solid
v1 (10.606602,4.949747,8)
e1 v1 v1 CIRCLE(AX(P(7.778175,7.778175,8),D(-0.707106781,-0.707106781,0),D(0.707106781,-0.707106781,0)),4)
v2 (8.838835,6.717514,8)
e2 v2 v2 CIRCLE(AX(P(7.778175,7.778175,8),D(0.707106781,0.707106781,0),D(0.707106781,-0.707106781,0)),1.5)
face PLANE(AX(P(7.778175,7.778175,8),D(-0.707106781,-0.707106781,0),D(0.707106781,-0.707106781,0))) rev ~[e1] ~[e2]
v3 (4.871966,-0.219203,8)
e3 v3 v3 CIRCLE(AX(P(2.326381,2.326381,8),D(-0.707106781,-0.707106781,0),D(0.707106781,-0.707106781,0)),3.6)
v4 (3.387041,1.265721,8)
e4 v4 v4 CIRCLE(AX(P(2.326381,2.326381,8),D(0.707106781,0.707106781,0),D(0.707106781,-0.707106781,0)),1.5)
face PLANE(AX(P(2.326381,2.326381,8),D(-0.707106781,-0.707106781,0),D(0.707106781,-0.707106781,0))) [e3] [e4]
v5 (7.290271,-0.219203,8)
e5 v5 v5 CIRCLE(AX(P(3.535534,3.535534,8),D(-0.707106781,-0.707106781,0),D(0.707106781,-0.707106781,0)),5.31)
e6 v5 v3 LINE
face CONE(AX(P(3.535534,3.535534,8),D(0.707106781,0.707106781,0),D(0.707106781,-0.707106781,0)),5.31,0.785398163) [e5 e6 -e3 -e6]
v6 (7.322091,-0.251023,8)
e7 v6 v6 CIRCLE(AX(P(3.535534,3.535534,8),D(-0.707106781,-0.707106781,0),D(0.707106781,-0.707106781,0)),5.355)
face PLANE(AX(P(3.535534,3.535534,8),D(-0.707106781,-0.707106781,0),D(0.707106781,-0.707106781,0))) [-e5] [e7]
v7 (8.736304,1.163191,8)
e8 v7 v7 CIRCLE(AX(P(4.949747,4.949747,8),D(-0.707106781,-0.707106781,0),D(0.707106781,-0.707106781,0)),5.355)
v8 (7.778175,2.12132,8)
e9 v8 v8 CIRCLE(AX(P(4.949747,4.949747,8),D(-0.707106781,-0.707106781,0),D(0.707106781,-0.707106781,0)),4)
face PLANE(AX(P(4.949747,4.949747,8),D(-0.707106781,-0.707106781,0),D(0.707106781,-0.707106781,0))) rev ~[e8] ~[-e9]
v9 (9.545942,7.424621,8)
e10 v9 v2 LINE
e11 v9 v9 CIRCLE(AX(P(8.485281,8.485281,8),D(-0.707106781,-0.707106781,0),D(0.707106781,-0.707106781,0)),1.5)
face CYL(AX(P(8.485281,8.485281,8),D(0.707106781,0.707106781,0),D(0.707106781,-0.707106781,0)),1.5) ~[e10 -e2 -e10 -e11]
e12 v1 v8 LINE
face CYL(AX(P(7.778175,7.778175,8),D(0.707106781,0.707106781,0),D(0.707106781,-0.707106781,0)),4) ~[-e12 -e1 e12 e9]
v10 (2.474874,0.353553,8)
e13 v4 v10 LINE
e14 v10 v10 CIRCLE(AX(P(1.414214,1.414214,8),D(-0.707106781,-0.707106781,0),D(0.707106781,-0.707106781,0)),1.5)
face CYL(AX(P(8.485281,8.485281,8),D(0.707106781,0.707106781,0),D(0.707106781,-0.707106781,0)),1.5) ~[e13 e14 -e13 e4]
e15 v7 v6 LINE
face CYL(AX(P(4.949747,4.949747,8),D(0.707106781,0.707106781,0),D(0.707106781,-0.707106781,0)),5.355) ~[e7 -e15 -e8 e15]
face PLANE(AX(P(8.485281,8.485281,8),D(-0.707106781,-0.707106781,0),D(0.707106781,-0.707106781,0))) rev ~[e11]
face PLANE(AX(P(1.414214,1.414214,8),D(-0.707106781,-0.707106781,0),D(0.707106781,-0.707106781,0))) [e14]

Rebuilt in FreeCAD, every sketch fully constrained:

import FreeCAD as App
import Part
import Sketcher

V = App.Vector
Q = App.Units.Quantity

doc = App.newDocument("Part")
body = doc.addObject("PartDesign::Body", "Body")

sketch1 = doc.addObject("Sketcher::SketchObject", "Sketch")
body.addObject(sketch1)
sketch1.AttachmentSupport = (doc.XZ_Plane, [""])
sketch1.MapMode = "FlatFace"
sketch1.AttachmentOffset = App.Placement(V(0, 0, -12), App.Rotation())
sketch1.addGeometry(Part.Circle(V(0, 8, 0), V(0, 0, 1), 1.5), False)
sketch1.addConstraint(Sketcher.Constraint("PointOnObject", 0, 3, -2))
sketch1.addConstraint(Sketcher.Constraint("Diameter", 0, Q("3 mm")))
sketch1.addConstraint(Sketcher.Constraint("DistanceY", -1, 1, 0, 3, Q("8 mm")))
pad1 = doc.addObject("PartDesign::Pad", "Pad")
body.addObject(pad1)
pad1.Profile = sketch1
pad1.Length = 10
body2 = doc.addObject("PartDesign::Body", "Body001")

sketch2 = doc.addObject("Sketcher::SketchObject", "Sketch001")
body2.addObject(sketch2)
sketch2.AttachmentSupport = (doc.getObject("XZ_Plane001"), [""])
sketch2.MapMode = "FlatFace"
sketch2.AttachmentOffset = App.Placement(V(0, 0, -11), App.Rotation())
sketch2.addGeometry(Part.Circle(V(0, 8, 0), V(0, 0, 1), 4), False)
sketch2.addConstraint(Sketcher.Constraint("PointOnObject", 0, 3, -2))
sketch2.addConstraint(Sketcher.Constraint("Diameter", 0, Q("8 mm")))
sketch2.addConstraint(Sketcher.Constraint("DistanceY", -1, 1, 0, 3, Q("8 mm")))
pad2 = doc.addObject("PartDesign::Pad", "Pad001")
body2.addObject(pad2)
pad2.Profile = sketch2
pad2.Length = 4
body3 = doc.addObject("PartDesign::Body", "Body002")

sketch3 = doc.addObject("Sketcher::SketchObject", "Sketch002")
body3.addObject(sketch3)
sketch3.AttachmentSupport = (doc.getObject("XZ_Plane002"), [""])
sketch3.MapMode = "FlatFace"
sketch3.AttachmentOffset = App.Placement(V(0, 0, -7), App.Rotation())
sketch3.addGeometry(Part.Circle(V(0, 8, 0), V(0, 0, 1), 5.355), False)
sketch3.addConstraint(Sketcher.Constraint("PointOnObject", 0, 3, -2))
sketch3.addConstraint(Sketcher.Constraint("Diameter", 0, Q("10.71 mm")))
sketch3.addConstraint(Sketcher.Constraint("DistanceY", -1, 1, 0, 3, Q("8 mm")))
pad3 = doc.addObject("PartDesign::Pad", "Pad002")
body3.addObject(pad3)
pad3.Profile = sketch3
pad3.Length = 2
body4 = doc.addObject("PartDesign::Body", "Body003")

sketch4 = doc.addObject("Sketcher::SketchObject", "Sketch003")
body4.addObject(sketch4)
sketch4.AttachmentSupport = (doc.getObject("XY_Plane003"), [""])
sketch4.MapMode = "FlatFace"
sketch4.AttachmentOffset = App.Placement(V(0, 0, 8), App.Rotation())
sketch4.addGeometry(Part.LineSegment(V(0, 5, 0), V(5.31, 5, 0)), False)
sketch4.addGeometry(Part.LineSegment(V(5.31, 5, 0), V(3.6, 3.29, 0)), False)
sketch4.addGeometry(Part.LineSegment(V(3.6, 3.29, 0), V(0, 3.29, 0)), False)
sketch4.addGeometry(Part.LineSegment(V(0, 3.29, 0), V(0, 5, 0)), False)
sketch4.addConstraint(Sketcher.Constraint("Coincident", 0, 2, 1, 1))
sketch4.addConstraint(Sketcher.Constraint("Coincident", 1, 2, 2, 1))
sketch4.addConstraint(Sketcher.Constraint("Coincident", 2, 2, 3, 1))
sketch4.addConstraint(Sketcher.Constraint("Coincident", 3, 2, 0, 1))
sketch4.addConstraint(Sketcher.Constraint("Horizontal", 0))
sketch4.addConstraint(Sketcher.Constraint("Horizontal", 2))
sketch4.addConstraint(Sketcher.Constraint("Vertical", 3))
sketch4.addConstraint(Sketcher.Constraint("PointOnObject", 2, 2, -2))
sketch4.addConstraint(Sketcher.Constraint("Angle", 1, Q("-135 deg")))
sketch4.addConstraint(Sketcher.Constraint("DistanceX", 2, 2, 2, 1, Q("3.6 mm")))
sketch4.addConstraint(Sketcher.Constraint("DistanceY", -1, 1, 0, 2, Q("5 mm")))
sketch4.addConstraint(Sketcher.Constraint("DistanceX", 0, 1, 0, 2, Q("5.31 mm")))
revolution = doc.addObject("PartDesign::Revolution", "Revolution")
body4.addObject(revolution)
revolution.Profile = sketch4
revolution.ReferenceAxis = (sketch4, ["V_Axis"])
revolution.Angle = 360
doc.recompute()

boolean = doc.addObject("PartDesign::Boolean", "Boolean")
body4.addObject(boolean)
boolean.Type = "Fuse"
boolean.addObjects([body])
doc.recompute()

boolean2 = doc.addObject("PartDesign::Boolean", "Boolean001")
body4.addObject(boolean2)
boolean2.Type = "Fuse"
boolean2.addObjects([body2])
doc.recompute()

boolean3 = doc.addObject("PartDesign::Boolean", "Boolean002")
body4.addObject(boolean3)
boolean3.Type = "Fuse"
boolean3.addObjects([body3])
body5 = doc.addObject("PartDesign::Body", "Body004")
doc.recompute()

body4.Placement = App.Placement(V(0, 0, 0), App.Rotation(V(0, 0, -1), 45))
boolean4 = doc.addObject("PartDesign::Boolean", "Boolean003")
body5.addObject(boolean4)
boolean4.Type = "Fuse"
boolean4.addObjects([body4])

doc.recompute()
